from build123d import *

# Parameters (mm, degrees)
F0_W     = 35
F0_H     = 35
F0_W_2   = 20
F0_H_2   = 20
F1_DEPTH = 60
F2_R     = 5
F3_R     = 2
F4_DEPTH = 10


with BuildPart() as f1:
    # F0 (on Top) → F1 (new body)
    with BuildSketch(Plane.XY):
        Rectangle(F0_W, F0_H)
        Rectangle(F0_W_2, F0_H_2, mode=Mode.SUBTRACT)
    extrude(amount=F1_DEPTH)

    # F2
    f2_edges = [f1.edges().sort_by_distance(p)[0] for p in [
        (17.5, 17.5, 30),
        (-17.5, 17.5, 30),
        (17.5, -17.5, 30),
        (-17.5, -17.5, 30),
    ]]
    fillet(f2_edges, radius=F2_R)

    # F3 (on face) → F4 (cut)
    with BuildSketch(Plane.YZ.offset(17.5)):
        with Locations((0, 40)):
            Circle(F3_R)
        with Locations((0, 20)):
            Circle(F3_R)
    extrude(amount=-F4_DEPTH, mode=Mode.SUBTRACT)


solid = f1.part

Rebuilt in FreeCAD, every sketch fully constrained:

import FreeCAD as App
import Part
import Sketcher
from FreeCAD import Vector
Q = App.Units.Quantity


def edges_at(feature, points):
    """Names of the edges that pass closest to the given points."""
    edges = feature.Shape.Edges
    near = lambda p: min(range(len(edges)), key=lambda i: edges[i].distToShape(Part.Vertex(*p))[0])
    return sorted({f"Edge{near(p) + 1}" for p in points})

doc = App.newDocument("Part")
body = doc.addObject("PartDesign::Body", "Body")

# Sketch on XY plane
sketch1 = body.newObject("Sketcher::SketchObject", "Sketch")
sketch1.AttachmentSupport = (doc.getObject("XY_Plane"), [""])
sketch1.MapMode = "FlatFace"
sketch1.addGeometry([
    Part.LineSegment(Vector(-17.5, 17.5, 0), Vector(-17.5, -17.5, 0)),  # 0
    Part.LineSegment(Vector(-17.5, -17.5, 0), Vector(17.5, -17.5, 0)),  # 1
    Part.LineSegment(Vector(17.5, -17.5, 0), Vector(17.5, 17.5, 0)),  # 2
    Part.LineSegment(Vector(17.5, 17.5, 0), Vector(-17.5, 17.5, 0)),  # 3
    Part.LineSegment(Vector(10, -10, 0), Vector(-10, -10, 0)),  # 4
    Part.LineSegment(Vector(-10, -10, 0), Vector(-10, 10, 0)),  # 5
    Part.LineSegment(Vector(-10, 10, 0), Vector(10, 10, 0)),  # 6
    Part.LineSegment(Vector(10, 10, 0), Vector(10, -10, 0)),  # 7
], False)
sketch1.addConstraint([
    Sketcher.Constraint("Coincident", 0, 2, 1, 1),
    Sketcher.Constraint("Coincident", 1, 2, 2, 1),
    Sketcher.Constraint("Coincident", 2, 2, 3, 1),
    Sketcher.Constraint("Coincident", 3, 2, 0, 1),
    Sketcher.Constraint("Coincident", 4, 2, 5, 1),
    Sketcher.Constraint("Coincident", 5, 2, 6, 1),
    Sketcher.Constraint("Coincident", 6, 2, 7, 1),
    Sketcher.Constraint("Coincident", 7, 2, 4, 1),
    Sketcher.Constraint("Vertical", 0),
    Sketcher.Constraint("Horizontal", 1),
    Sketcher.Constraint("Vertical", 2),
    Sketcher.Constraint("Horizontal", 3),
    Sketcher.Constraint("Horizontal", 4),
    Sketcher.Constraint("Vertical", 5),
    Sketcher.Constraint("Horizontal", 6),
    Sketcher.Constraint("Vertical", 7),
    Sketcher.Constraint("Symmetric", 0, 2, 2, 2, -1, 1),
    Sketcher.Constraint("Symmetric", 4, 2, 6, 2, -1, 1),
    Sketcher.Constraint("Equal", 3, 0),
    Sketcher.Constraint("Equal", 6, 5),
    Sketcher.Constraint("DistanceX", 1, 1, 1, 2, Q("35 mm")),
    Sketcher.Constraint("DistanceX", 4, 2, 4, 1, Q("20 mm")),
])
pad1 = body.newObject("PartDesign::Pad", "Pad")
pad1.Profile = sketch1
pad1.Length = 60
doc.recompute()

fillet = body.newObject("PartDesign::Fillet", "Fillet")
fillet.Base = (pad1, edges_at(pad1, [
    (17.5, 17.5, 30),
    (-17.5, 17.5, 30),
    (17.5, -17.5, 30),
    (-17.5, -17.5, 30),
]))
fillet.Radius = 5

# Sketch on YZ plane
sketch2 = body.newObject("Sketcher::SketchObject", "Sketch001")
sketch2.AttachmentSupport = (doc.getObject("YZ_Plane"), [""])
sketch2.MapMode = "FlatFace"
sketch2.AttachmentOffset = App.Placement(Vector(0, 0, 17.5), App.Rotation())
sketch2.addGeometry([
    Part.Circle(Vector(0, 40, 0), Vector(0, 0, 1), 2),
    Part.Circle(Vector(0, 20, 0), Vector(0, 0, 1), 2),
], False)
sketch2.addConstraint([
    Sketcher.Constraint("Equal", 0, 1),
    Sketcher.Constraint("PointOnObject", 0, 3, -2),
    Sketcher.Constraint("PointOnObject", 1, 3, -2),
    Sketcher.Constraint("Diameter", 0, Q("4 mm")),
    Sketcher.Constraint("DistanceY", -1, 1, 0, 3, Q("40 mm")),
    Sketcher.Constraint("DistanceY", -1, 1, 1, 3, Q("20 mm")),
])
pocket1 = body.newObject("PartDesign::Pocket", "Pocket")
pocket1.Profile = sketch2
pocket1.Length = 10

doc.recompute()
